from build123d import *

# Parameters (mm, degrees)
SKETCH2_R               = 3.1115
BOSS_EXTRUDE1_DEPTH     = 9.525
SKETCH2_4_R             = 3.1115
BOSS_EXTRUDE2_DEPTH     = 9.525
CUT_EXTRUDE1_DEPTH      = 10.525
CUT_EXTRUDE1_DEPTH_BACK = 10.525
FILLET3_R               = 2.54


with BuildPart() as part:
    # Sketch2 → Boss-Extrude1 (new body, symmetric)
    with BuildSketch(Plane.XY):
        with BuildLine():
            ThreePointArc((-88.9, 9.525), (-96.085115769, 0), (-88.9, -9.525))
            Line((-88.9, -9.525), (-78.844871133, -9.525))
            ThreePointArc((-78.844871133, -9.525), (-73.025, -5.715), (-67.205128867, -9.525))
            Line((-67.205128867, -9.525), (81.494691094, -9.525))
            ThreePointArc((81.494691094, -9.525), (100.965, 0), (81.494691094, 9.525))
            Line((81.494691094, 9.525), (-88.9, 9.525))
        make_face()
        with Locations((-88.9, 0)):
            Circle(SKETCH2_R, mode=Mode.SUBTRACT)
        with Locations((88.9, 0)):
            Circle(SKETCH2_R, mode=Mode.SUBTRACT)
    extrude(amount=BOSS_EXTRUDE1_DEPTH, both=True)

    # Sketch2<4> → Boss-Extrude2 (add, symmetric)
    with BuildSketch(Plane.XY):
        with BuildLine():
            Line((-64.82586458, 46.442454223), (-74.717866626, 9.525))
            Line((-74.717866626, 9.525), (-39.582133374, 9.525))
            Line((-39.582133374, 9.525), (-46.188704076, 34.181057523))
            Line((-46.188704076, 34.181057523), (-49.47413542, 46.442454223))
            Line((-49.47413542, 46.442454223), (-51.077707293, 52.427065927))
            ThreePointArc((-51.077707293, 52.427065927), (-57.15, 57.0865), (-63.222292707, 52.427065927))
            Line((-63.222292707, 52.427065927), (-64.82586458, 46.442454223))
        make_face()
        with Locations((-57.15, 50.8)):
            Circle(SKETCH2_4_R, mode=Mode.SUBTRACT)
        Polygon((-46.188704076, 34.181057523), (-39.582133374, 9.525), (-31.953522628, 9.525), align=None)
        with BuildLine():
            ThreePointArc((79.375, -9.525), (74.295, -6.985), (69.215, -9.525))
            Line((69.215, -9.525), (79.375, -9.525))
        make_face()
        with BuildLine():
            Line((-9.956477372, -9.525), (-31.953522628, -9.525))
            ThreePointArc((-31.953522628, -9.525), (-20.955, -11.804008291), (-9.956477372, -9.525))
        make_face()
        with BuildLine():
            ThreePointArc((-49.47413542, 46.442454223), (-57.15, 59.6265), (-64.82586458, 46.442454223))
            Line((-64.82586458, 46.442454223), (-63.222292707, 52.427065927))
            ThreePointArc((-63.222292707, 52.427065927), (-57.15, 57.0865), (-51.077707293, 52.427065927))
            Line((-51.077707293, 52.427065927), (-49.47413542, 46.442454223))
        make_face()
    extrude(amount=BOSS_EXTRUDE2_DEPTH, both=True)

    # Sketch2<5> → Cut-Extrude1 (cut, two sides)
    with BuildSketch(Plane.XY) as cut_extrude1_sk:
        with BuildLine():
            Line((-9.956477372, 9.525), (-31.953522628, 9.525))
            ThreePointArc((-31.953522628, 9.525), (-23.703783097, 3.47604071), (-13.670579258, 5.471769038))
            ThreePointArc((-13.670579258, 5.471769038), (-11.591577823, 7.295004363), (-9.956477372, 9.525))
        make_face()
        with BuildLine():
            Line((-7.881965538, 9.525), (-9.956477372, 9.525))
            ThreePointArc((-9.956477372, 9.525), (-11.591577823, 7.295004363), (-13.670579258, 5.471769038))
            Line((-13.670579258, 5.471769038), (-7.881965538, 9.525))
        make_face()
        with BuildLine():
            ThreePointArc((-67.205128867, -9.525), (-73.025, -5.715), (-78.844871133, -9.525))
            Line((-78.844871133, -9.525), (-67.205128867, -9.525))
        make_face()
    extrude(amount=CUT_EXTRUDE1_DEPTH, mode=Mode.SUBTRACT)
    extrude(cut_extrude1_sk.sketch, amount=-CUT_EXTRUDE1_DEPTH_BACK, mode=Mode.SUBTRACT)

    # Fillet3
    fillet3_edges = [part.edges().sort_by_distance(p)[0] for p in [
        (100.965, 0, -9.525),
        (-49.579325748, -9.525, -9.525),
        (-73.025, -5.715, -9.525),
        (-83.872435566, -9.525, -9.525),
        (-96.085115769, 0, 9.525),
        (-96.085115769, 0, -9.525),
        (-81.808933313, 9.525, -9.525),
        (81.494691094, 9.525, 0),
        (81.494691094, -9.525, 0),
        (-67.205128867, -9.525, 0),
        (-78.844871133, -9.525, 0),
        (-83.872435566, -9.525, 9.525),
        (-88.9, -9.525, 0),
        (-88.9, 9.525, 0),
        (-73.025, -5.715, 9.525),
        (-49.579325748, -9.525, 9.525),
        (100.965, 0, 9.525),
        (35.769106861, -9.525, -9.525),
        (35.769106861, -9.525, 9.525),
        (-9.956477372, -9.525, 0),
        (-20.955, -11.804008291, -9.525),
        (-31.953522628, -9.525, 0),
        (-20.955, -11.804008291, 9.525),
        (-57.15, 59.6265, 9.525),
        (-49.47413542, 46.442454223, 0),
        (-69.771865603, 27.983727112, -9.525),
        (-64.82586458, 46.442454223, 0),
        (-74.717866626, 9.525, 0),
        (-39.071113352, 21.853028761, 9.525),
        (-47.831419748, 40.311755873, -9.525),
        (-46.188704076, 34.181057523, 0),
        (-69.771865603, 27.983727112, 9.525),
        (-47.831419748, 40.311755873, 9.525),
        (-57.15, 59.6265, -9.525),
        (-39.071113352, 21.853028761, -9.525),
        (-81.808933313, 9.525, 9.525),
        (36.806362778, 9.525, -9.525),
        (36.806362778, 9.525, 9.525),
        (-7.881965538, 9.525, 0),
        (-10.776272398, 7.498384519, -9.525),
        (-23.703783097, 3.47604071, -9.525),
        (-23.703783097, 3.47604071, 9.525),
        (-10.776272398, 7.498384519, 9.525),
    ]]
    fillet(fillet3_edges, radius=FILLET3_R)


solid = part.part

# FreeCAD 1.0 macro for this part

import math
import FreeCAD as App
import Part
import Sketcher
from FreeCAD import Vector
Q = App.Units.Quantity


def edges_at(feature, points):
    """Names of the edges that pass closest to the given points."""
    edges = feature.Shape.Edges
    near = lambda p: min(range(len(edges)), key=lambda i: edges[i].distToShape(Part.Vertex(*p))[0])
    return sorted({f"Edge{near(p) + 1}" for p in points})

doc = App.newDocument("Part")
body = doc.addObject("PartDesign::Body", "Body")

sketch1 = body.newObject("Sketcher::SketchObject", "Sketch")
sketch1.AttachmentSupport = (doc.getObject("XY_Plane"), [""])
sketch1.MapMode = "FlatFace"
sketch1.addGeometry([
    Part.ArcOfCircle(Part.Circle(Vector(-86.2, 0, 0), Vector(0, 0, 1), 9.9), math.radians(106), math.radians(254)),
    Part.LineSegment(Vector(-88.9, -9.5, 0), Vector(-78.8, -9.5, 0)),
    Part.ArcOfCircle(Part.Circle(Vector(-73, -12.1, 0), Vector(0, 0, 1), 6.4), math.radians(24), math.radians(156)),
    Part.LineSegment(Vector(-67.2, -9.5, 0), Vector(81.5, -9.5, 0)),
    Part.ArcOfCircle(Part.Circle(Vector(88.9, 0, 0), Vector(0, 0, 1), 12.1), math.radians(-128), math.radians(128)),
    Part.LineSegment(Vector(81.5, 9.5, 0), Vector(-88.9, 9.5, 0)),
    Part.Circle(Vector(-88.9, 0, 0), Vector(0, 0, 1), 3.1),
    Part.Circle(Vector(88.9, 0, 0), Vector(0, 0, 1), 3.1),
], False)
sketch1.addConstraint([
    Sketcher.Constraint("Coincident", 0, 2, 1, 1),
    Sketcher.Constraint("Coincident", 1, 2, 2, 2),
    Sketcher.Constraint("Coincident", 2, 1, 3, 1),
    Sketcher.Constraint("Coincident", 3, 2, 4, 1),
    Sketcher.Constraint("Coincident", 4, 2, 5, 1),
    Sketcher.Constraint("Coincident", 5, 2, 0, 1),
    Sketcher.Constraint("Horizontal", 1),
    Sketcher.Constraint("Horizontal", 3),
    Sketcher.Constraint("Horizontal", 5),
    Sketcher.Constraint("Coincident", 7, 3, 4, 3),
    Sketcher.Constraint("Equal", 6, 7),
    Sketcher.Constraint("Symmetric", 4, 3, 6, 3, -1, 1),
    Sketcher.Constraint("Symmetric", 3, 2, 4, 2, -1),
    Sketcher.Constraint("Symmetric", 0, 2, 5, 2, -1),
    Sketcher.Constraint("Vertical", 6, 3, 0, 2),
    Sketcher.Constraint("Radius", 0, Q("0.39 in")),
    Sketcher.Constraint("Radius", 2, Q("0.25 in")),
    Sketcher.Constraint("Diameter", 6, Q("0.245 in")),
    Sketcher.Constraint("Radius", 4, Q("0.475 in")),
    Sketcher.Constraint("DistanceX", 6, 3, 4, 3, Q("7 in")),
    Sketcher.Constraint("DistanceY", 2, 3, 0, 2, Q("0.1 in")),
    Sketcher.Constraint("DistanceY", 3, 2, 4, 2, Q("0.75 in")),
    Sketcher.Constraint("DistanceX", 2, 3, -1, 1, Q("2.875 in")),
])
pad1 = body.newObject("PartDesign::Pad", "Pad")
pad1.Profile = sketch1
pad1.Length = Q("0.75 in")
pad1.Midplane = True

sketch2 = body.newObject("Sketcher::SketchObject", "Sketch001")
sketch2.AttachmentSupport = (doc.getObject("XY_Plane"), [""])
sketch2.MapMode = "FlatFace"
sketch2.addGeometry([
    Part.LineSegment(Vector(-64.8, 46.4, 0), Vector(-74.7, 9.5, 0)),
    Part.LineSegment(Vector(-74.7, 9.5, 0), Vector(-32, 9.5, 0)),
    Part.LineSegment(Vector(-32, 9.5, 0), Vector(-46.2, 34.2, 0)),
    Part.LineSegment(Vector(-46.2, 34.2, 0), Vector(-49.5, 46.4, 0)),
    Part.ArcOfCircle(Part.Circle(Vector(-57.1, 50.8, 0), Vector(0, 0, 1), 8.8), math.radians(-30), math.radians(210)),
    Part.Circle(Vector(-57.1, 50.8, 0), Vector(0, 0, 1), 3.1),
    Part.ArcOfCircle(Part.Circle(Vector(74.3, -13.3, 0), Vector(0, 0, 1), 6.3), math.radians(37), math.radians(143)),
    Part.LineSegment(Vector(69.2, -9.5, 0), Vector(79.4, -9.5, 0)),
    Part.LineSegment(Vector(-10, -9.5, 0), Vector(-32, -9.5, 0)),
    Part.ArcOfCircle(Part.Circle(Vector(-21, 15.9, 0), Vector(0, 0, 1), 27.7), math.radians(-113), math.radians(-67)),
], False)
sketch2.addConstraint([
    Sketcher.Constraint("Coincident", 0, 2, 1, 1),
    Sketcher.Constraint("Coincident", 1, 2, 2, 1),
    Sketcher.Constraint("Coincident", 2, 2, 3, 1),
    Sketcher.Constraint("Coincident", 3, 2, 4, 1),
    Sketcher.Constraint("Coincident", 4, 2, 0, 1),
    Sketcher.Constraint("Coincident", 6, 1, 7, 2),
    Sketcher.Constraint("Coincident", 7, 1, 6, 2),
    Sketcher.Constraint("Coincident", 8, 1, 9, 2),
    Sketcher.Constraint("Coincident", 9, 1, 8, 2),
    Sketcher.Constraint("Horizontal", 1),
    Sketcher.Constraint("Horizontal", 7),
    Sketcher.Constraint("Horizontal", 8),
    Sketcher.Constraint("Coincident", 5, 3, 4, 3),
    Sketcher.Constraint("Symmetric", 1, 2, 9, 1, -1),
    Sketcher.Constraint("Horizontal", 3, 2, 4, 2),
    Sketcher.Constraint("Horizontal", 7, 1, 8, 1),
    Sketcher.Constraint("Radius", 6, Q("0.25 in")),
    Sketcher.Constraint("Diameter", 5, Q("0.245 in")),
    Sketcher.Constraint("DistanceX", 7, 1, 7, 2, Q("0.4 in")),
    Sketcher.Constraint("DistanceY", -1, 1, 4, 3, Q("2 in")),
    Sketcher.Constraint("Angle", 0, Q("-105 deg")),
    Sketcher.Constraint("Angle", 2, Q("120 deg")),
    Sketcher.Constraint("Angle", 3, Q("105 deg")),
    Sketcher.Constraint("DistanceY", 6, 1, 9, 3, Q("1 in")),
    Sketcher.Constraint("Radius", 4, Q("0.3475 in")),
    Sketcher.Constraint("DistanceY", 6, 3, 0, 2, Q("0.9 in")),
    Sketcher.Constraint("DistanceX", 4, 3, -1, 1, Q("2.25 in")),
    Sketcher.Constraint("DistanceX", 9, 3, 6, 3, Q("3.75 in")),
    Sketcher.Constraint("DistanceX", -1, 1, 6, 3, Q("2.925 in")),
    Sketcher.Constraint("Radius", 9, 27.679008),
    Sketcher.Constraint("Distance", 0, 38.219761),
])
pad2 = body.newObject("PartDesign::Pad", "Pad001")
pad2.Profile = sketch2
pad2.Length = Q("0.75 in")
pad2.Midplane = True

sketch3 = body.newObject("Sketcher::SketchObject", "Sketch002")
sketch3.AttachmentSupport = (doc.getObject("XY_Plane"), [""])
sketch3.MapMode = "FlatFace"
sketch3.addGeometry([
    Part.ArcOfCircle(Part.Circle(Vector(-21, 16, 0), Vector(0, 0, 1), 13), math.radians(-150), math.radians(-55)),
    Part.LineSegment(Vector(-14, 5, 0), Vector(-8, 10, 0)),
    Part.LineSegment(Vector(-8, 10, 0), Vector(-32, 10, 0)),
    Part.ArcOfCircle(Part.Circle(Vector(-73, -12, 0), Vector(0, 0, 1), 6), math.radians(24), math.radians(156)),
    Part.LineSegment(Vector(-79, -10, 0), Vector(-67, -10, 0)),
], False)
sketch3.addConstraint([
    Sketcher.Constraint("Tangent", 0, 2, 1, 1),
    Sketcher.Constraint("Coincident", 1, 2, 2, 1),
    Sketcher.Constraint("Coincident", 2, 2, 0, 1),
    Sketcher.Constraint("Coincident", 3, 1, 4, 2),
    Sketcher.Constraint("Coincident", 4, 1, 3, 2),
    Sketcher.Constraint("Horizontal", 2),
    Sketcher.Constraint("Horizontal", 4),
    Sketcher.Constraint("Radius", 0, Q("0.5 in")),
    Sketcher.Constraint("Radius", 3, Q("0.25 in")),
    Sketcher.Constraint("Angle", 1, Q("35 deg")),
    Sketcher.Constraint("DistanceY", 3, 1, 0, 3, Q("1 in")),
    Sketcher.Constraint("DistanceY", 3, 3, 0, 3, Q("1.1 in")),
    Sketcher.Constraint("DistanceX", 3, 3, 0, 3, Q("2.05 in")),
    Sketcher.Constraint("DistanceY", 1, 2, 0, 3, Q("0.25 in")),
    Sketcher.Constraint("DistanceX", 0, 3, -1, 1, Q("0.825 in")),
    Sketcher.Constraint("DistanceY", -1, 1, 0, 3, Q("0.625 in")),
])
pocket1 = body.newObject("PartDesign::Pocket", "Pocket")
pocket1.Profile = sketch3
pocket1.Type = "ThroughAll"
pocket1.Midplane = True
doc.recompute()

fillet = body.newObject("PartDesign::Fillet", "Fillet")
fillet.Base = (pocket1, edges_at(pocket1, [
    (100.965, 0, -9.525),
    (-49.579, -9.525, -9.525),
    (-73.025, -5.715, -9.525),
    (-83.872, -9.525, -9.525),
    (-96.085, 0, 9.525),
    (-96.085, 0, -9.525),
    (-81.809, 9.525, -9.525),
    (81.495, 9.525, 0),
    (81.495, -9.525, 0),
    (-67.205, -9.525, 0),
    (-78.845, -9.525, 0),
    (-83.872, -9.525, 9.525),
    (-88.9, -9.525, 0),
    (-88.9, 9.525, 0),
    (-73.025, -5.715, 9.525),
    (-49.579, -9.525, 9.525),
    (100.965, 0, 9.525),
    (35.769, -9.525, -9.525),
    (35.769, -9.525, 9.525),
    (-9.956, -9.525, 0),
    (-20.955, -11.804, -9.525),
    (-31.954, -9.525, 0),
    (-20.955, -11.804, 9.525),
    (-57.15, 59.627, 9.525),
    (-49.474, 46.442, 0),
    (-69.772, 27.984, -9.525),
    (-64.826, 46.442, 0),
    (-74.718, 9.525, 0),
    (-39.071, 21.853, 9.525),
    (-47.831, 40.312, -9.525),
    (-46.189, 34.181, 0),
    (-69.772, 27.984, 9.525),
    (-47.831, 40.312, 9.525),
    (-57.15, 59.627, -9.525),
    (-39.071, 21.853, -9.525),
    (-81.809, 9.525, 9.525),
    (36.806, 9.525, -9.525),
    (36.806, 9.525, 9.525),
    (-7.882, 9.525, 0),
    (-10.776, 7.498, -9.525),
    (-23.704, 3.476, -9.525),
    (-23.704, 3.476, 9.525),
    (-10.776, 7.498, 9.525),
]))
fillet.Radius = Q("0.1 in")

doc.recompute()
